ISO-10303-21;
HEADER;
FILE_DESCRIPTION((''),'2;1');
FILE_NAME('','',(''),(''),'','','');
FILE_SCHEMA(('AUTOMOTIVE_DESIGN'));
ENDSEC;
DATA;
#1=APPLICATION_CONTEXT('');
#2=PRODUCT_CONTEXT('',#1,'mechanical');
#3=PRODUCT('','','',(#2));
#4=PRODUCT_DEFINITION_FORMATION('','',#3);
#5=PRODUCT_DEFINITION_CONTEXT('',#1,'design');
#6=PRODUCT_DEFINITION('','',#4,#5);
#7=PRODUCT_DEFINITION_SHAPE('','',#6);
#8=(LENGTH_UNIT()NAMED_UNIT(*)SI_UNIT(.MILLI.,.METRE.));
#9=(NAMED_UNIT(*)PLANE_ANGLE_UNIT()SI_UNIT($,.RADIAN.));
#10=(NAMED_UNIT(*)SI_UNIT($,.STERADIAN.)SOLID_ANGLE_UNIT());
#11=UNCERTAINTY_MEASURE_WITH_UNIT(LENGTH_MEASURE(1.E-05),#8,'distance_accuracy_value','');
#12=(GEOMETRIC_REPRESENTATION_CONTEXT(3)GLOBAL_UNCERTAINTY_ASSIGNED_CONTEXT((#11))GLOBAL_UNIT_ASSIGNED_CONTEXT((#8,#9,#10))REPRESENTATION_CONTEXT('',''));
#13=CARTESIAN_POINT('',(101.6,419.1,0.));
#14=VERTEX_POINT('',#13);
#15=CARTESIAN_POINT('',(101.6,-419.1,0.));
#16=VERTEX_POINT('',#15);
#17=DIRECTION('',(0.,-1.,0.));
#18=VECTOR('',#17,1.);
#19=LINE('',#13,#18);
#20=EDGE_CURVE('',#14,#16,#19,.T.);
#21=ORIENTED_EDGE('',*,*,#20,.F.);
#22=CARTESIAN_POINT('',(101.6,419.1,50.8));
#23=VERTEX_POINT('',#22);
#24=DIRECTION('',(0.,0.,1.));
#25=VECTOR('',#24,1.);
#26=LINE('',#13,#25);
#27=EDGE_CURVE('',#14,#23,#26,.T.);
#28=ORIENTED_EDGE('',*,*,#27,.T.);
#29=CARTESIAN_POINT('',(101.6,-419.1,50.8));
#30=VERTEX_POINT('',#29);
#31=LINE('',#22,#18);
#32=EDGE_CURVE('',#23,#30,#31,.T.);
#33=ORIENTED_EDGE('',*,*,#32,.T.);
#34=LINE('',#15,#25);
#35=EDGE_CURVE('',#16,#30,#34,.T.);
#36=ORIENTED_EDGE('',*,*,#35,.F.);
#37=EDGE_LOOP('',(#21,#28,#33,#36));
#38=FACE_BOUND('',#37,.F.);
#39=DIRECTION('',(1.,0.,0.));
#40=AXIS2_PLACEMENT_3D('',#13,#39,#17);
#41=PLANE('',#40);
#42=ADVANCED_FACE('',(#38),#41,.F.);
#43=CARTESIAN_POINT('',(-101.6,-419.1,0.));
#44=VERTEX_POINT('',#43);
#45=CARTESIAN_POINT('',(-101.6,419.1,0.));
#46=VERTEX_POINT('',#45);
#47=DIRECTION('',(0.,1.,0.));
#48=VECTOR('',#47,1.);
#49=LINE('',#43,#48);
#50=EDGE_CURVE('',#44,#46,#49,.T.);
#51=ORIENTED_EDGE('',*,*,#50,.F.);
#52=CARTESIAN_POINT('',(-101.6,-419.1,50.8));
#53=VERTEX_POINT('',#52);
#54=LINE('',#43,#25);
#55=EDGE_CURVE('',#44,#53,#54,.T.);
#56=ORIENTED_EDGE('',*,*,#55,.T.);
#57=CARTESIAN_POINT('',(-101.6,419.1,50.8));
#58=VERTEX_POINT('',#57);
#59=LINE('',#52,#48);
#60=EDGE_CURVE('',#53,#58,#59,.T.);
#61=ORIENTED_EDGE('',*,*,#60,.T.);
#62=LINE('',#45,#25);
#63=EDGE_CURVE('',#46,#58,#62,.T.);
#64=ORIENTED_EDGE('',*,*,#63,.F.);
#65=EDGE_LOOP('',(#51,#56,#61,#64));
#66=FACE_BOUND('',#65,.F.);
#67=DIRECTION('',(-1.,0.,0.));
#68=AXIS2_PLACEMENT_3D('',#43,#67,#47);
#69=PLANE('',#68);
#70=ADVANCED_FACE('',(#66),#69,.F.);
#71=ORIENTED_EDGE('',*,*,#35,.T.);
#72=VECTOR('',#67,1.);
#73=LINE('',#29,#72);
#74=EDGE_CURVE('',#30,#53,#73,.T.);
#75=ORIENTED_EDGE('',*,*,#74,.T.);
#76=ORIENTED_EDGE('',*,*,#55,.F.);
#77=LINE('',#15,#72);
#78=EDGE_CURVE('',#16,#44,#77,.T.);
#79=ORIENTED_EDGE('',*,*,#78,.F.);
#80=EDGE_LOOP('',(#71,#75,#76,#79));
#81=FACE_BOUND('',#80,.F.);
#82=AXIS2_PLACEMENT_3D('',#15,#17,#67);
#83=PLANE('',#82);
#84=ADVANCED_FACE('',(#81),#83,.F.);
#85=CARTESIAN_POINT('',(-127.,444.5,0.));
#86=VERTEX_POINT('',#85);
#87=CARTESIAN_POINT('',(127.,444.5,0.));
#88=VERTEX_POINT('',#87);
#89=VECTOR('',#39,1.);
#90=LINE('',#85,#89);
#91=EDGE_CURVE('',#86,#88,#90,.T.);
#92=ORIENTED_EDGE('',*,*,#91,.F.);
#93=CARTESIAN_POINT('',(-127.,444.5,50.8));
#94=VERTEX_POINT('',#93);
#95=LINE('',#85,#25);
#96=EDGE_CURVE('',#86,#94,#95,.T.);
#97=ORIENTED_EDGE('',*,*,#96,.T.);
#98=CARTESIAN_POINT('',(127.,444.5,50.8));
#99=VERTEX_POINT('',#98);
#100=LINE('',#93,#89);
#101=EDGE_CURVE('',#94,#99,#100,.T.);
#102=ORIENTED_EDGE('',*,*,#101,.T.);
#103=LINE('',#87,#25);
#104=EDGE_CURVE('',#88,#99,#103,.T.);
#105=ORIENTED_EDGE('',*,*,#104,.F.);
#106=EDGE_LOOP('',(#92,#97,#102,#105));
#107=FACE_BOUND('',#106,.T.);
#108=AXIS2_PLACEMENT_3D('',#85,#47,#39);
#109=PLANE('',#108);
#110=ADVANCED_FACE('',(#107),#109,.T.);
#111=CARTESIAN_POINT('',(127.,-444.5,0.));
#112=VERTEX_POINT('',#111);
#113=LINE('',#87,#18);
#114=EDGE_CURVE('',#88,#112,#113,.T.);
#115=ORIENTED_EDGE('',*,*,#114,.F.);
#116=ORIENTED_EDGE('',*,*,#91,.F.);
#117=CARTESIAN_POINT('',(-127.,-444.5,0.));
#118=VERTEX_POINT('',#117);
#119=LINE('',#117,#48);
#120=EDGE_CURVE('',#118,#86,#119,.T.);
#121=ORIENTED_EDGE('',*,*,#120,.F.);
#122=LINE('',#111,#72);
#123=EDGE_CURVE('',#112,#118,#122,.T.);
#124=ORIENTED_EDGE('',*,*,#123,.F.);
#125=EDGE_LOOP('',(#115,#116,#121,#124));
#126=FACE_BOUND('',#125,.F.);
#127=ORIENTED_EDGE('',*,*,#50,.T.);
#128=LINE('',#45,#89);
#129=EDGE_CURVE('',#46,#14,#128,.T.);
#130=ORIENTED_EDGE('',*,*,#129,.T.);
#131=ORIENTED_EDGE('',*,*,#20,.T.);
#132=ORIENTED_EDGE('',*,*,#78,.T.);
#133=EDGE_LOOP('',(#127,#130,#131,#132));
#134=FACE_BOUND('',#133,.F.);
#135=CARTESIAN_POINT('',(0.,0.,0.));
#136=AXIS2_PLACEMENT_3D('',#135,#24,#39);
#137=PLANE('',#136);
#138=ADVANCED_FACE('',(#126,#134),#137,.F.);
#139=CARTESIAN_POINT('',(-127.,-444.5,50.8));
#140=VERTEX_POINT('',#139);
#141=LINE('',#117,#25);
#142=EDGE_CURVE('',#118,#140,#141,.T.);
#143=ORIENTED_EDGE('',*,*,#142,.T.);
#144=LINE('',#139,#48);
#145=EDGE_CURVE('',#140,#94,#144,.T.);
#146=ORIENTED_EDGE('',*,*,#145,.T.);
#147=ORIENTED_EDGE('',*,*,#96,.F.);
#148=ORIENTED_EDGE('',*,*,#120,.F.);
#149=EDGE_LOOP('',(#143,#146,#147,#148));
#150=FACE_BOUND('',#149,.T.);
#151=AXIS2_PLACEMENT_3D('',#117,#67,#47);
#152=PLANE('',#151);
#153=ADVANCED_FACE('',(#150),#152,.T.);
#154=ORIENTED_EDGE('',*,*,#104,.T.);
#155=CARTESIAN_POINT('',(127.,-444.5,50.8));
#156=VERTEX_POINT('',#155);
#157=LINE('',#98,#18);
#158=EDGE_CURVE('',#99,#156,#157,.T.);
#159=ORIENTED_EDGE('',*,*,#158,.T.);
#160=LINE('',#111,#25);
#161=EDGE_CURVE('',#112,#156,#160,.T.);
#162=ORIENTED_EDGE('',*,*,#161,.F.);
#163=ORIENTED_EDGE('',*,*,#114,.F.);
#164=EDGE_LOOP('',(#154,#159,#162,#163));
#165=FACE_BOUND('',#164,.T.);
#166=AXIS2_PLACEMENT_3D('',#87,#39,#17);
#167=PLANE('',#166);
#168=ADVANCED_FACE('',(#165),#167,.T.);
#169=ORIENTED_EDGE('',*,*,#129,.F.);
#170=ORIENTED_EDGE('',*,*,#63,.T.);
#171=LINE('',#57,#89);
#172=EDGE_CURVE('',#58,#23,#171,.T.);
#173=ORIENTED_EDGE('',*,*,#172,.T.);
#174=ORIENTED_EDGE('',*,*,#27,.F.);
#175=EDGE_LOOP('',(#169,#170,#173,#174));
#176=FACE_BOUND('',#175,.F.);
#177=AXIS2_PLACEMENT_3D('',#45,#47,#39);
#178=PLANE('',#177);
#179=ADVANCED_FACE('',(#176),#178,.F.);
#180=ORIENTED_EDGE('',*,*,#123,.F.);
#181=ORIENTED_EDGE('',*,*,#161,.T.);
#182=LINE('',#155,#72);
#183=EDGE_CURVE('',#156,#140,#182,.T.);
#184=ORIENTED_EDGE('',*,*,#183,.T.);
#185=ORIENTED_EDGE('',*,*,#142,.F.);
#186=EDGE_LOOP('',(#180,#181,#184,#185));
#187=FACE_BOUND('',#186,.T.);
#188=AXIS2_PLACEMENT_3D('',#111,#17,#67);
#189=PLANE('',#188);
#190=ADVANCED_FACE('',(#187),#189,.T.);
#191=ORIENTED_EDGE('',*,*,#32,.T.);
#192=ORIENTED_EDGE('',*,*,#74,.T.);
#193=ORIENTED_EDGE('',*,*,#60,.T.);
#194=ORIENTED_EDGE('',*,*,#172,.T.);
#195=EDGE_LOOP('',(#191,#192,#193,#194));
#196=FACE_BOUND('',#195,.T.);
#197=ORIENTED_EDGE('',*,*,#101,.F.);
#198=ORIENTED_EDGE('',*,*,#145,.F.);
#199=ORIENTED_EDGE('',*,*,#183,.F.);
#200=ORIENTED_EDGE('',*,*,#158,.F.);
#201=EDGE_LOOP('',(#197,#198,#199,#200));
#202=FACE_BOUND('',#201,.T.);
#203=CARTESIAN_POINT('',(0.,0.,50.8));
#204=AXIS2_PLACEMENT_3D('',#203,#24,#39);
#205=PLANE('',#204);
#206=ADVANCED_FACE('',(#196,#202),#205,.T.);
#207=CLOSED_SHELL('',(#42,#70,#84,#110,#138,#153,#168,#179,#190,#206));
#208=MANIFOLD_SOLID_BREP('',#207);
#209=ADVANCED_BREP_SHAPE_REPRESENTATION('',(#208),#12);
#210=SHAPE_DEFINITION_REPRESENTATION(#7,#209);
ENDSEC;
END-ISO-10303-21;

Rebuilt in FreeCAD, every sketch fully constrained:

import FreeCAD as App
import Part
import Sketcher

V = App.Vector
Q = App.Units.Quantity

doc = App.newDocument("Part")
body = doc.addObject("PartDesign::Body", "Body")

# Sketch on XY plane
sketch1 = body.newObject("Sketcher::SketchObject", "Sketch")
sketch1.AttachmentSupport = (doc.getObject("XY_Plane"), [""])
sketch1.MapMode = "FlatFace"
sketch1.addGeometry([
    Part.LineSegment(V(127, 444, 0), V(-127, 444, 0)),  # 0
    Part.LineSegment(V(-127, 444, 0), V(-127, -444, 0)),  # 1
    Part.LineSegment(V(-127, -444, 0), V(127, -444, 0)),  # 2
    Part.LineSegment(V(127, -444, 0), V(127, 444, 0)),  # 3
    Part.LineSegment(V(-102, -419, 0), V(-102, 419, 0)),  # 4
    Part.LineSegment(V(-102, 419, 0), V(102, 419, 0)),  # 5
    Part.LineSegment(V(102, 419, 0), V(102, -419, 0)),  # 6
    Part.LineSegment(V(102, -419, 0), V(-102, -419, 0)),  # 7
], False)
sketch1.addConstraint([
    Sketcher.Constraint("Coincident", 0, 2, 1, 1),
    Sketcher.Constraint("Coincident", 1, 2, 2, 1),
    Sketcher.Constraint("Coincident", 2, 2, 3, 1),
    Sketcher.Constraint("Coincident", 3, 2, 0, 1),
    Sketcher.Constraint("Coincident", 4, 2, 5, 1),
    Sketcher.Constraint("Coincident", 5, 2, 6, 1),
    Sketcher.Constraint("Coincident", 6, 2, 7, 1),
    Sketcher.Constraint("Coincident", 7, 2, 4, 1),
    Sketcher.Constraint("Horizontal", 0),
    Sketcher.Constraint("Vertical", 1),
    Sketcher.Constraint("Horizontal", 2),
    Sketcher.Constraint("Vertical", 3),
    Sketcher.Constraint("Vertical", 4),
    Sketcher.Constraint("Horizontal", 5),
    Sketcher.Constraint("Vertical", 6),
    Sketcher.Constraint("Horizontal", 7),
    Sketcher.Constraint("Symmetric", 0, 2, 2, 2, -1, 1),
    Sketcher.Constraint("Symmetric", 4, 2, 6, 2, -1, 1),
    Sketcher.Constraint("DistanceX", 0, 2, 0, 1, Q("10 in")),
    Sketcher.Constraint("DistanceY", 1, 2, 1, 1, Q("35 in")),
    Sketcher.Constraint("DistanceX", 0, 2, 4, 2, Q("1 in")),
    Sketcher.Constraint("DistanceY", 4, 2, 0, 2, Q("1 in")),
])
pad1 = body.newObject("PartDesign::Pad", "Pad")
pad1.Profile = sketch1
pad1.Length = Q("2 in")

doc.recompute()
